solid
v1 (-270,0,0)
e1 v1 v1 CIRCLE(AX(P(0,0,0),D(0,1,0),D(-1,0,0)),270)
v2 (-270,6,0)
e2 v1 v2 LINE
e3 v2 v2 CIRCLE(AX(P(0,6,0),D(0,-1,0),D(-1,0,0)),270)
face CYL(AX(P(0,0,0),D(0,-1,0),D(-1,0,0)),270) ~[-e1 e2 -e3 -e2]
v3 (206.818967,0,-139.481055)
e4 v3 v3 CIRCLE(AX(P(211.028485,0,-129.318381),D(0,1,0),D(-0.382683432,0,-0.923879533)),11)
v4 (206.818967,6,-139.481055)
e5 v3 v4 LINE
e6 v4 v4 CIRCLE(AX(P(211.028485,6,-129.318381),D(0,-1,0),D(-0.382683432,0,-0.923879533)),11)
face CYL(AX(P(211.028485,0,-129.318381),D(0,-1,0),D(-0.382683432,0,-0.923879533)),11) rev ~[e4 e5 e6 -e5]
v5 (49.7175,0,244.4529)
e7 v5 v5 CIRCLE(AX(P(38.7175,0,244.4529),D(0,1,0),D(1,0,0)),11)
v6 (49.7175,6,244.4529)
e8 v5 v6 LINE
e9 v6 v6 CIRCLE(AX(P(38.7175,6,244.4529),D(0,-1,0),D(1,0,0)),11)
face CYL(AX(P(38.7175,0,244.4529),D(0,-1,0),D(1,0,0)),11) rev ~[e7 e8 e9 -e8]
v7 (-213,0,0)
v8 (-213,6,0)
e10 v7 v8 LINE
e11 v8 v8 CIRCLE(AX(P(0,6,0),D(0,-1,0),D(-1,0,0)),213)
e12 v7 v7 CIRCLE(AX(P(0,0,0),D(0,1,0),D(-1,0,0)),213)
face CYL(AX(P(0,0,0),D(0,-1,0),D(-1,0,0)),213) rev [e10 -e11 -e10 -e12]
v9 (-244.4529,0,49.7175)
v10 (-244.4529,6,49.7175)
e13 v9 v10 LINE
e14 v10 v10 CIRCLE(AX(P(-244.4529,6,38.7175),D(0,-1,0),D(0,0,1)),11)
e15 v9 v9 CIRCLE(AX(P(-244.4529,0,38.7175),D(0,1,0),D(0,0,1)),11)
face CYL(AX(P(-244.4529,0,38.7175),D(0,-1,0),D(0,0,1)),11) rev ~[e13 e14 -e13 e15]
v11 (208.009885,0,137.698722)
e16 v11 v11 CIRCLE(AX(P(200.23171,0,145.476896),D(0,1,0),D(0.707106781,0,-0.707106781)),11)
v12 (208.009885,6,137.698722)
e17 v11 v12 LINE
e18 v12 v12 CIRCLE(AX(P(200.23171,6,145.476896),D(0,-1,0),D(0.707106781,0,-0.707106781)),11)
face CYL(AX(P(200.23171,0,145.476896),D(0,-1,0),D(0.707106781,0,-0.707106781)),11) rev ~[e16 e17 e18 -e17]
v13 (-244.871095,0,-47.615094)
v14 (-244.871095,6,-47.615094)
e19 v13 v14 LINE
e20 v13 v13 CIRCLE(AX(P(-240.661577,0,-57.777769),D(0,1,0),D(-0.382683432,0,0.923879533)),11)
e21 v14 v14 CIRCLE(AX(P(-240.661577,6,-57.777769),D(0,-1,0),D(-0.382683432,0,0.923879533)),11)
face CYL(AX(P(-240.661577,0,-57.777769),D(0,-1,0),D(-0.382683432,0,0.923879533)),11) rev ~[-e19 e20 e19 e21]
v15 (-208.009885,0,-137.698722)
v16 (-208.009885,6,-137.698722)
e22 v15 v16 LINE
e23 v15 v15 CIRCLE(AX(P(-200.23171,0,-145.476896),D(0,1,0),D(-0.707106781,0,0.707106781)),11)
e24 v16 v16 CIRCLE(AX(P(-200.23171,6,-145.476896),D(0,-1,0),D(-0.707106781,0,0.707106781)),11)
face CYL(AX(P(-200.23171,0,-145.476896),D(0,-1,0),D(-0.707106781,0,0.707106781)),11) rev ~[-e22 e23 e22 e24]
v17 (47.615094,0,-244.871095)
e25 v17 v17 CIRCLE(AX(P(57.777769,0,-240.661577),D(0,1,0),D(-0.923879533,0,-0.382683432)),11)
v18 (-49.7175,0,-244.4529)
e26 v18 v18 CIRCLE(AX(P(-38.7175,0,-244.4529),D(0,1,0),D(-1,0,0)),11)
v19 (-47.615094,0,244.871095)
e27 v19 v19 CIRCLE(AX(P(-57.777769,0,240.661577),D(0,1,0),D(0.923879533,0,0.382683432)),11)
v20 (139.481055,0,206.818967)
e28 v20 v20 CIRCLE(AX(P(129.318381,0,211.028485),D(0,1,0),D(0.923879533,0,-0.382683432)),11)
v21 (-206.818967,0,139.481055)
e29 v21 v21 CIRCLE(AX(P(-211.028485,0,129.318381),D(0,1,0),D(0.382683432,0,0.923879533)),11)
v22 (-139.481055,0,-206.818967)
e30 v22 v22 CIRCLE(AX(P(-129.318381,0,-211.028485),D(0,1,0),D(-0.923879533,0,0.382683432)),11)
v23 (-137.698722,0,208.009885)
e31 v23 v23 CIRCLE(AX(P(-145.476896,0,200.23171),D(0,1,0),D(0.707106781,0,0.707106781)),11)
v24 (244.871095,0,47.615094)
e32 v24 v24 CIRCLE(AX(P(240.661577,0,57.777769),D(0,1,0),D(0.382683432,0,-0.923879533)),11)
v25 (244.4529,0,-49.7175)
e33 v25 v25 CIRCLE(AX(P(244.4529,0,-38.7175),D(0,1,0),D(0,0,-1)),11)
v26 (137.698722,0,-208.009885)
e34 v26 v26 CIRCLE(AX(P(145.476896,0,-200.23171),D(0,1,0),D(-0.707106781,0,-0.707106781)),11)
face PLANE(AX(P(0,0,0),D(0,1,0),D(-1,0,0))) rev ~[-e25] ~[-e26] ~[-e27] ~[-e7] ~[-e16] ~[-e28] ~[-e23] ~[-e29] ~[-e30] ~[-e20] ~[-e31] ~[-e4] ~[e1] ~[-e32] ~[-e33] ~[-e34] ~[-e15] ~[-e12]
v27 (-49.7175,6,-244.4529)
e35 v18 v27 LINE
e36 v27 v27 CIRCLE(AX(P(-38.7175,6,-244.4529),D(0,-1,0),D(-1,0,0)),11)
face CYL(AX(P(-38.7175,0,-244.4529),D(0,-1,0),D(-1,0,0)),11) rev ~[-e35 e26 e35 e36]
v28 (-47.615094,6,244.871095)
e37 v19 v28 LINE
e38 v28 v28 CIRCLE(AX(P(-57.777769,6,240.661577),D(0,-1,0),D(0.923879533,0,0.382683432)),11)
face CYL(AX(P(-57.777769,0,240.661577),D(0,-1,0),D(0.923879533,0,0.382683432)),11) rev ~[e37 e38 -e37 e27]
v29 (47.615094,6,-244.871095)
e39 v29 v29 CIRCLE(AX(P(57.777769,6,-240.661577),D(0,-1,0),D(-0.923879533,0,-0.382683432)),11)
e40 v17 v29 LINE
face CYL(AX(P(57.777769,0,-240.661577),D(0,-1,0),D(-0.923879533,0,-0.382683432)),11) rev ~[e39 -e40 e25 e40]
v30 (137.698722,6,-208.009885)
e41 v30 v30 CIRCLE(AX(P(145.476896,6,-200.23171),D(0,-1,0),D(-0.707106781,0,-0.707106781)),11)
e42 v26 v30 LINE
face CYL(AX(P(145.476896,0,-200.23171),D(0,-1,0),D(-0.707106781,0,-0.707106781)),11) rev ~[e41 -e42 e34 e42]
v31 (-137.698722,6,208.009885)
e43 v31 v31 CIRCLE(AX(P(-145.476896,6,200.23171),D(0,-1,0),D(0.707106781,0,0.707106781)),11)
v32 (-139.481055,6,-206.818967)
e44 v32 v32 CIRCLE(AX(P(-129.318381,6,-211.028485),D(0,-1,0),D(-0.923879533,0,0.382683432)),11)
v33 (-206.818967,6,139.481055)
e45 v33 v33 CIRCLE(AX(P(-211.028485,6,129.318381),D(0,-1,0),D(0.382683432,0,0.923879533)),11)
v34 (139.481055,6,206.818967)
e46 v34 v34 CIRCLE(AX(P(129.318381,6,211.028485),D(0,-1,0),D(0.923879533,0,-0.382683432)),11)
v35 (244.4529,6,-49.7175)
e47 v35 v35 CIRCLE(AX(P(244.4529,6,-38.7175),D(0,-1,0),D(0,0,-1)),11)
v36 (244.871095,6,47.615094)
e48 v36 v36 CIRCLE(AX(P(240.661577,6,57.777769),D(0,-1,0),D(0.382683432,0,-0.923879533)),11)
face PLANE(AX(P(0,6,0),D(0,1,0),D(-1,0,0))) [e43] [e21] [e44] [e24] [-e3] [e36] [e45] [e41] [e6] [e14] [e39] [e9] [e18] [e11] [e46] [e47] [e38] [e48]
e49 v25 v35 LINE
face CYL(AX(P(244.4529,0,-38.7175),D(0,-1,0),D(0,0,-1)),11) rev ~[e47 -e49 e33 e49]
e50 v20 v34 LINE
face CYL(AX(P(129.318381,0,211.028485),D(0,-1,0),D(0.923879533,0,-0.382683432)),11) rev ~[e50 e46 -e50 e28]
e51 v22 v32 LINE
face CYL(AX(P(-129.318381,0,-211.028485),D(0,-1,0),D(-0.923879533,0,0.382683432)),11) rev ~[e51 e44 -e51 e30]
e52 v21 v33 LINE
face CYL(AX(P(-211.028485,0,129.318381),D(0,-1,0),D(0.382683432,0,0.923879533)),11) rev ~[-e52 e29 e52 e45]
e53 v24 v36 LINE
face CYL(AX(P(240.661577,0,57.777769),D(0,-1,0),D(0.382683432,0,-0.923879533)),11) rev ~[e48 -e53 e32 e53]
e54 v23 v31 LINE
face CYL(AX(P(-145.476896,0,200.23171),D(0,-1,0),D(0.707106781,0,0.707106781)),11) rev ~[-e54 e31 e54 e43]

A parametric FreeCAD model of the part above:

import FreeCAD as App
import Part
import Sketcher

V = App.Vector
Q = App.Units.Quantity

doc = App.newDocument("Part")
body = doc.addObject("PartDesign::Body", "Body")

sketch1 = doc.addObject("Sketcher::SketchObject", "Sketch")
body.addObject(sketch1)
sketch1.AttachmentSupport = (doc.XZ_Plane, [""])
sketch1.MapMode = "FlatFace"
sketch1.addGeometry([
    Part.Circle(V(0, 0, 0), V(0, 0, 1), 270),
    Part.Circle(V(0, 0, 0), V(0, 0, 1), 213),
], False)
sketch1.addConstraint([
    Sketcher.Constraint("Coincident", 0, 3, -1, 1),
    Sketcher.Constraint("Coincident", 1, 3, -1, 1),
    Sketcher.Constraint("Diameter", 0, Q("540 mm")),
    Sketcher.Constraint("Diameter", 1, Q("426 mm")),
])
pad1 = doc.addObject("PartDesign::Pad", "Pad")
body.addObject(pad1)
pad1.Profile = sketch1
pad1.Length = 6
pad1.Reversed = True

sketch2 = doc.addObject("Sketcher::SketchObject", "Sketch001")
body.addObject(sketch2)
sketch2.AttachmentSupport = (doc.XZ_Plane, [""])
sketch2.MapMode = "FlatFace"
sketch2.addGeometry(Part.Circle(V(39, 244, 0), V(0, 0, 1), 11), False)
sketch2.addConstraint([
    Sketcher.Constraint("Diameter", 0, Q("22 mm")),
    Sketcher.Constraint("DistanceY", -1, 1, 0, 3, Q("244.453 mm")),
    Sketcher.Constraint("DistanceX", -1, 1, 0, 3, Q("38.7175 mm")),
])
pocket1 = doc.addObject("PartDesign::Pocket", "Pocket")
body.addObject(pocket1)
pocket1.Profile = sketch2
pocket1.Length = 6
doc.recompute()

polarpattern = doc.addObject("PartDesign::PolarPattern", "PolarPattern")
body.addObject(polarpattern)
polarpattern.Originals = [pocket1]
polarpattern.Axis = (doc.Y_Axis, [""])
polarpattern.Angle = 360
polarpattern.Occurrences = 16
body.Tip = polarpattern

doc.recompute()
